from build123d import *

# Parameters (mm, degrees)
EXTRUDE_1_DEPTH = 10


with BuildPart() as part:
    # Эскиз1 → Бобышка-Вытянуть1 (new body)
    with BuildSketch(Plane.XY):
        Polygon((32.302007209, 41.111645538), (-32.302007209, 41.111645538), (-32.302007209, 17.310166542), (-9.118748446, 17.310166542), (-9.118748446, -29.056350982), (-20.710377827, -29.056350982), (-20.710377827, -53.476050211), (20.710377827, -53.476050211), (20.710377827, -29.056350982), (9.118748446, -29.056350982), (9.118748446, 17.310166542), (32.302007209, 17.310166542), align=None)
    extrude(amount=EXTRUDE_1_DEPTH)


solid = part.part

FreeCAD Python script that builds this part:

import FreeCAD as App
import Part
import Sketcher

V = App.Vector


def add_polygon(sketch, points):
    """Adds a closed chain of lines whose ends are joined by coincident constraints."""
    first, n = sketch.GeometryCount, len(points)
    for a, b in zip(points, points[1:] + points[:1]):
        sketch.addGeometry(Part.LineSegment(App.Vector(*a, 0), App.Vector(*b, 0)), False)
    for i in range(n):
        sketch.addConstraint(Sketcher.Constraint("Coincident", first + i, 2, first + (i + 1) % n, 1))

doc = App.newDocument("Part")
body = doc.addObject("PartDesign::Body", "Body")

# Sketch on XY plane
sketch1 = body.newObject("Sketcher::SketchObject", "Sketch")
sketch1.AttachmentSupport = (doc.getObject("XY_Plane"), [""])
sketch1.MapMode = "FlatFace"
add_polygon(sketch1, [(32, 41), (-32, 41), (-32, 17), (-9, 17), (-9, -29), (-21, -29), (-21, -53), (21, -53), (21, -29), (9, -29), (9, 17), (32, 17)])  # lines 0-11
sketch1.addConstraint([
    Sketcher.Constraint("Horizontal", 0),
    Sketcher.Constraint("Vertical", 1),
    Sketcher.Constraint("Horizontal", 2),
    Sketcher.Constraint("Vertical", 3),
    Sketcher.Constraint("Horizontal", 4),
    Sketcher.Constraint("Vertical", 5),
    Sketcher.Constraint("Horizontal", 6),
    Sketcher.Constraint("Vertical", 7),
    Sketcher.Constraint("Horizontal", 8),
    Sketcher.Constraint("Vertical", 9),
    Sketcher.Constraint("Horizontal", 10),
    Sketcher.Constraint("Vertical", 11),
    Sketcher.Constraint("Symmetric", 4, 2, 7, 2, -2),
    Sketcher.Constraint("Symmetric", 2, 2, 9, 2, -2),
    Sketcher.Constraint("Equal", 2, 10),
    Sketcher.Constraint("DistanceY", 5, 2, 5, 1, 24.419699),
    Sketcher.Constraint("DistanceX", 2, 1, 2, 2, 23.183259),
    Sketcher.Constraint("DistanceX", 4, 2, 4, 1, 11.591629),
    Sketcher.Constraint("DistanceY", 1, 2, 1, 1, 23.801479),
    Sketcher.Constraint("DistanceX", 0, 2, 0, 1, 64.604014),
    Sketcher.Constraint("DistanceY", 3, 2, 3, 1, 46.366518),
    Sketcher.Constraint("DistanceY", 3, 2, -1, 1, 29.056351),
])
pad1 = body.newObject("PartDesign::Pad", "Pad")
pad1.Profile = sketch1
pad1.Length = 10

doc.recompute()
